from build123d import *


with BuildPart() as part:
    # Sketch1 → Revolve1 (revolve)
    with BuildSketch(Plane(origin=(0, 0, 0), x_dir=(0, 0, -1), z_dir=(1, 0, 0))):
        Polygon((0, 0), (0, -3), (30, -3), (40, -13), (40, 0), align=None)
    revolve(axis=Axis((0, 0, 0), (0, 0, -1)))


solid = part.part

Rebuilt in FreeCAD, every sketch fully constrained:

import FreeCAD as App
import Part
import Sketcher
Q = App.Units.Quantity

doc = App.newDocument("Part")
body = doc.addObject("PartDesign::Body", "Body")

# Sketch on YZ plane
sketch1 = body.newObject("Sketcher::SketchObject", "Sketch")
sketch1.AttachmentSupport = (doc.getObject("YZ_Plane"), [""])
sketch1.MapMode = "FlatFace"
sketch1.addGeometry(Part.LineSegment(App.Vector(0, 0, 0), App.Vector(-3, 0, 0)), False)
sketch1.addGeometry(Part.LineSegment(App.Vector(-3, 0, 0), App.Vector(-3, -30, 0)), False)
sketch1.addGeometry(Part.LineSegment(App.Vector(-3, -30, 0), App.Vector(-13, -40, 0)), False)
sketch1.addGeometry(Part.LineSegment(App.Vector(-13, -40, 0), App.Vector(0, -40, 0)), False)
sketch1.addGeometry(Part.LineSegment(App.Vector(0, -40, 0), App.Vector(0, 0, 0)), False)
sketch1.addConstraint(Sketcher.Constraint("Coincident", 0, 2, 1, 1))
sketch1.addConstraint(Sketcher.Constraint("Coincident", 1, 2, 2, 1))
sketch1.addConstraint(Sketcher.Constraint("Coincident", 2, 2, 3, 1))
sketch1.addConstraint(Sketcher.Constraint("Coincident", 3, 2, 4, 1))
sketch1.addConstraint(Sketcher.Constraint("Coincident", 4, 2, 0, 1))
sketch1.addConstraint(Sketcher.Constraint("Horizontal", 0))
sketch1.addConstraint(Sketcher.Constraint("Vertical", 1))
sketch1.addConstraint(Sketcher.Constraint("Horizontal", 3))
sketch1.addConstraint(Sketcher.Constraint("Vertical", 4))
sketch1.addConstraint(Sketcher.Constraint("Coincident", 4, 2, -1, 1))
sketch1.addConstraint(Sketcher.Constraint("DistanceX", 0, 2, 0, 1, Q("3 mm")))
sketch1.addConstraint(Sketcher.Constraint("DistanceX", 3, 1, 3, 2, Q("13 mm")))
sketch1.addConstraint(Sketcher.Constraint("DistanceY", 1, 2, 1, 1, Q("30 mm")))
sketch1.addConstraint(Sketcher.Constraint("DistanceY", 4, 1, 4, 2, Q("40 mm")))
revolution = body.newObject("PartDesign::Revolution", "Revolution")
revolution.Profile = sketch1
revolution.ReferenceAxis = (sketch1, ["V_Axis"])
revolution.Angle = 360

doc.recompute()
